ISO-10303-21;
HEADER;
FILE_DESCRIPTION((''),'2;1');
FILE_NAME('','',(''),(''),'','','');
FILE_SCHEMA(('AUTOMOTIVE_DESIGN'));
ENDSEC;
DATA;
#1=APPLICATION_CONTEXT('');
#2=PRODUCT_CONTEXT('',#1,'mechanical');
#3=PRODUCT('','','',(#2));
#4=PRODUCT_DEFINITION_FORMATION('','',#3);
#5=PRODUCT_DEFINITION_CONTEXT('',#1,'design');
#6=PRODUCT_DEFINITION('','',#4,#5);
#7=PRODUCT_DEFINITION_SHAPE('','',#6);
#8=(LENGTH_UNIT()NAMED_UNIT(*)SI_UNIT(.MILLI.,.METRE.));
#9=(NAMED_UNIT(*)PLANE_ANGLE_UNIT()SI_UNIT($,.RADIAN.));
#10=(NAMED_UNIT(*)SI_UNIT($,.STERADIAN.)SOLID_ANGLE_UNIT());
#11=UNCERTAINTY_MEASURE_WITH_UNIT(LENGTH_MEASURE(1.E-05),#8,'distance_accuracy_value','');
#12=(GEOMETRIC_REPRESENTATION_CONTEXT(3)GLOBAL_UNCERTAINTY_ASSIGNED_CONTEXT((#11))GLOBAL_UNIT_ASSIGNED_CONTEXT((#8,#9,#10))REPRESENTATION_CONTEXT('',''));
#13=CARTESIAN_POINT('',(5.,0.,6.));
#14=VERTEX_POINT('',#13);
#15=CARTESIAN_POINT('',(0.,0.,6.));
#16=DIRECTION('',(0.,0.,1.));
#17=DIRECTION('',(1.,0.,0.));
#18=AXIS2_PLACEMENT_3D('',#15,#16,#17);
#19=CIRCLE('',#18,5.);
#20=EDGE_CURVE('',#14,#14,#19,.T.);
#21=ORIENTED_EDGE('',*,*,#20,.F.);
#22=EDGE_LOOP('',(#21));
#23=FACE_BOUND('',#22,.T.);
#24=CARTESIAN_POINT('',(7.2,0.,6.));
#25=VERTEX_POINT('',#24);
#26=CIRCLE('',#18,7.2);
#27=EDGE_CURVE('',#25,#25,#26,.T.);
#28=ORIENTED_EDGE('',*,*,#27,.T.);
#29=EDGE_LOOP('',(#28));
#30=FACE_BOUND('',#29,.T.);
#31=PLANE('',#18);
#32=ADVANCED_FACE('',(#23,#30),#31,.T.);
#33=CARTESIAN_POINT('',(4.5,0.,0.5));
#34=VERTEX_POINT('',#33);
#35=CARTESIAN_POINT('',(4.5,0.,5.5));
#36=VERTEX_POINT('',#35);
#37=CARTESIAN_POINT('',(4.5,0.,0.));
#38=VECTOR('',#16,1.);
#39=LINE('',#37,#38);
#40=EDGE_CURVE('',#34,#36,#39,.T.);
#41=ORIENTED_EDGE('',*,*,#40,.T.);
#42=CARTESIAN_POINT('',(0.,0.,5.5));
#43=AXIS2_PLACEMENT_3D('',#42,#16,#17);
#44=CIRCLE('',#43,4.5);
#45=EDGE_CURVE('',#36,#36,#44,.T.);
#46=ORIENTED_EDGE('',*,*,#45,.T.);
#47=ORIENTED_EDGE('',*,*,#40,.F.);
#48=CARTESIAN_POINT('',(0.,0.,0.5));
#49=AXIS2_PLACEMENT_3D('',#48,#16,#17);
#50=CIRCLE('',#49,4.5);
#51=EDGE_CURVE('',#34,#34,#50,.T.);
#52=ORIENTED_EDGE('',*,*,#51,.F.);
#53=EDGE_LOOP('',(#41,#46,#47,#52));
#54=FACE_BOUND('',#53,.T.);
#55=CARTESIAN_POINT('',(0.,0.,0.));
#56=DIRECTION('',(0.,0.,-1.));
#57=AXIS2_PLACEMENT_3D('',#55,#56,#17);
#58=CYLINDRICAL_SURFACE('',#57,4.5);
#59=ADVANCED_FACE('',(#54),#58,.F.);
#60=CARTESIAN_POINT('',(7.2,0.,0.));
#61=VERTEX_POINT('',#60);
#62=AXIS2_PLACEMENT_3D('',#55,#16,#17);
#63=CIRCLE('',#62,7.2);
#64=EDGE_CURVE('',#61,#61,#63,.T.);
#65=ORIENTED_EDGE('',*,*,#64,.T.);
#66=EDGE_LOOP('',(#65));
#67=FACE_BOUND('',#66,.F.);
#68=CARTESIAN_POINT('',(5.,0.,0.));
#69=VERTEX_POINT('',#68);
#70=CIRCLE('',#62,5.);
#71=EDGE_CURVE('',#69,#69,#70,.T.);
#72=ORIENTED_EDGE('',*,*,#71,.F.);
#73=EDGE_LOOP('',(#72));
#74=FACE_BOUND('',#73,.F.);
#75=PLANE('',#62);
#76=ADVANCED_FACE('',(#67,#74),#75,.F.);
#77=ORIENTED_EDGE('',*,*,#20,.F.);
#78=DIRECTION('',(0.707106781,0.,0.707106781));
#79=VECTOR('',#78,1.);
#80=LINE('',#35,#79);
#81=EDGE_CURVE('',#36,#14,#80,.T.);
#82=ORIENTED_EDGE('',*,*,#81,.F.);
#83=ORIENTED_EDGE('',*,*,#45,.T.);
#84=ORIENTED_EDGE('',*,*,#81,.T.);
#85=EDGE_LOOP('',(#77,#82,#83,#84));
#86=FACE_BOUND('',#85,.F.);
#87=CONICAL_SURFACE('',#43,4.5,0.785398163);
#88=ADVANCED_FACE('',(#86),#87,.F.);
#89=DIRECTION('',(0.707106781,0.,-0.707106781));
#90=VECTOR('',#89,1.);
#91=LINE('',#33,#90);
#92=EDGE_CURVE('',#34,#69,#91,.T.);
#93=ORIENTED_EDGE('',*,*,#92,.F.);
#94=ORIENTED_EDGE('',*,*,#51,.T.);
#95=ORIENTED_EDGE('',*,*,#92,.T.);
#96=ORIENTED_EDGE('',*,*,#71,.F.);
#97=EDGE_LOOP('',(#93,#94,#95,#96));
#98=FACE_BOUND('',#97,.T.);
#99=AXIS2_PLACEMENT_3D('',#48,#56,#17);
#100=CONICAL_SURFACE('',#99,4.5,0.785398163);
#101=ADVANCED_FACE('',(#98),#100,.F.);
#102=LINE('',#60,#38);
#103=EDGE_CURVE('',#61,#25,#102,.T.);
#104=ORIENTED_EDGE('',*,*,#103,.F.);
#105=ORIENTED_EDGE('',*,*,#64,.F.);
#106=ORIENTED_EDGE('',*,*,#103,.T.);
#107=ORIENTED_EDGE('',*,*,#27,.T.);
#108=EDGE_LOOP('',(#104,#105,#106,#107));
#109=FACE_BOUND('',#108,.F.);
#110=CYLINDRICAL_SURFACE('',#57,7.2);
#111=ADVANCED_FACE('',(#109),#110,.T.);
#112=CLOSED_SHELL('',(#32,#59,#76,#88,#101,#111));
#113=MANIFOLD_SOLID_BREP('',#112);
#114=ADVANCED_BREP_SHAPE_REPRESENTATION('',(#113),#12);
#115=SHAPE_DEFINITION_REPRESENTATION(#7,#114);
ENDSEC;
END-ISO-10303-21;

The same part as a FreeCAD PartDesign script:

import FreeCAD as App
import Part
import Sketcher
from FreeCAD import Vector
Q = App.Units.Quantity


def edges_at(feature, points):
    """Names of the edges that pass closest to the given points."""
    edges = feature.Shape.Edges
    near = lambda p: min(range(len(edges)), key=lambda i: edges[i].distToShape(Part.Vertex(*p))[0])
    return sorted({f"Edge{near(p) + 1}" for p in points})

doc = App.newDocument("Part")
params = doc.addObject("Spreadsheet::Sheet", "Params")
for row, (alias, value) in enumerate([
    ("sketch1_diameter", "9 mm"),
    ("sketch1_diameter2", "14.4 mm"),
    ("pad1_length", "6 mm"),
    ("chamfer_size", "0.5 mm"),
    ("chamfer_size2", "0.5 mm"),
], start=1):
    params.set(f"A{row}", alias)
    params.set(f"B{row}", "=" + value)
    params.setAlias(f"B{row}", alias)

body = doc.addObject("PartDesign::Body", "Body")

sketch1 = doc.addObject("Sketcher::SketchObject", "Sketch")
body.addObject(sketch1)
sketch1.AttachmentSupport = (doc.XY_Plane, [""])
sketch1.MapMode = "FlatFace"
sketch1.addGeometry([
    Part.Circle(Vector(0, 0, 0), Vector(0, 0, 1), 7.2),
    Part.Circle(Vector(0, 0, 0), Vector(0, 0, 1), 4.5),
], False)
sketch1.addConstraint([
    Sketcher.Constraint("Coincident", 0, 3, -1, 1),
    Sketcher.Constraint("Coincident", 1, 3, -1, 1),
    Sketcher.Constraint("Diameter", 1, Q("9 mm")),
    Sketcher.Constraint("Diameter", 0, Q("14.4 mm")),
])
sketch1.setExpression("Constraints[2]", "Params.sketch1_diameter")
sketch1.setExpression("Constraints[3]", "Params.sketch1_diameter2")
pad1 = doc.addObject("PartDesign::Pad", "Pad")
body.addObject(pad1)
pad1.Profile = sketch1
pad1.setExpression("Length", "Params.pad1_length")
doc.recompute()

chamfer = doc.addObject("PartDesign::Chamfer", "Chamfer")
body.addObject(chamfer)
chamfer.Base = (pad1, edges_at(pad1, [(-4.5, 0, 0), (4.5, 0, 3), (-4.5, 0, 6)]))
chamfer.ChamferType = "Two distances"
chamfer.setExpression("Size", "Params.chamfer_size")
chamfer.setExpression("Size2", "Params.chamfer_size2")

doc.recompute()
